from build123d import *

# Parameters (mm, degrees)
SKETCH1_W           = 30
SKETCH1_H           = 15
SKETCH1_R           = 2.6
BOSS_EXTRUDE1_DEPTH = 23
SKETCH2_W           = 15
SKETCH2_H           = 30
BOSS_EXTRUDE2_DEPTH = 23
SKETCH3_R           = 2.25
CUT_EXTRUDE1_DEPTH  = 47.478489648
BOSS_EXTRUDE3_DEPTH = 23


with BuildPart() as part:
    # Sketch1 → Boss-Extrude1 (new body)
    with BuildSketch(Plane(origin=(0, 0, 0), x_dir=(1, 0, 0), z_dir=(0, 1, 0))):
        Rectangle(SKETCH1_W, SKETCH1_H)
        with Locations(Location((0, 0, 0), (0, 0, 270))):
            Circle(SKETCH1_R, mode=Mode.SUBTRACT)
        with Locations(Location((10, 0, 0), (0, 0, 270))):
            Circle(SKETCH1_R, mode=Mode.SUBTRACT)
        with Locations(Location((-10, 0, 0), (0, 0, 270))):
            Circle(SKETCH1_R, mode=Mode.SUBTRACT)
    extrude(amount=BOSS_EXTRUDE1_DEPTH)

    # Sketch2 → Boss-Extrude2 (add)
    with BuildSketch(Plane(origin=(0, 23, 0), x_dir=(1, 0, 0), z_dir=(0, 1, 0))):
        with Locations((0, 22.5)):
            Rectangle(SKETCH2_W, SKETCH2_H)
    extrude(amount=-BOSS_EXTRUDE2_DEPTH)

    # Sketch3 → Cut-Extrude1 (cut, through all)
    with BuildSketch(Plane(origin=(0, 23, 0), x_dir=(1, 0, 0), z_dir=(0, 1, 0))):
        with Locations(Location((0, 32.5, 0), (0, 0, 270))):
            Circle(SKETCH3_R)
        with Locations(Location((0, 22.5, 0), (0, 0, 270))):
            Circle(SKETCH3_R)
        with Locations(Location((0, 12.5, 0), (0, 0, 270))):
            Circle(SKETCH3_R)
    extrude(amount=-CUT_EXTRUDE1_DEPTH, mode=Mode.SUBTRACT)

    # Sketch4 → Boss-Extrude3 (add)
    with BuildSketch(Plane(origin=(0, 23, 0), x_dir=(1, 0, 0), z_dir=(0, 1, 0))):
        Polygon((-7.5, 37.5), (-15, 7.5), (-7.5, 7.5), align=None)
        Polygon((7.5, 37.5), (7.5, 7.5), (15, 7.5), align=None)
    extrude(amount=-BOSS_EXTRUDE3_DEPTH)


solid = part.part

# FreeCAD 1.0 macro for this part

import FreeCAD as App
import Part
import Sketcher

doc = App.newDocument("Part")
params = doc.addObject("Spreadsheet::Sheet", "Params")
for row, (alias, value) in enumerate([
    ("sketch1_diameter", "5.2 mm"),
    ("sketch1_width", "30 mm"),
    ("sketch1_height", "15 mm"),
    ("pad1_length", "23 mm"),
    ("sketch2_width", "15 mm"),
    ("sketch2_height", "30 mm"),
    ("pad2_length", "23 mm"),
    ("sketch3_diameter", "4.5 mm"),
    ("sketch4_height", "30 mm"),
    ("sketch4_width", "7.5 mm"),
    ("pad3_length", "23 mm"),
], start=1):
    params.set(f"A{row}", alias)
    params.set(f"B{row}", "=" + value)
    params.setAlias(f"B{row}", alias)

body = doc.addObject("PartDesign::Body", "Body")

# Sketch on XZ plane
sketch1 = doc.addObject("Sketcher::SketchObject", "Sketch")
body.addObject(sketch1)
sketch1.AttachmentSupport = (doc.XZ_Plane, [""])
sketch1.MapMode = "FlatFace"
sketch1.addGeometry([
    Part.LineSegment(App.Vector(-15, -7.5, 0), App.Vector(-15, 7.5, 0)),  # 0
    Part.LineSegment(App.Vector(-15, 7.5, 0), App.Vector(15, 7.5, 0)),  # 1
    Part.LineSegment(App.Vector(15, 7.5, 0), App.Vector(15, -7.5, 0)),  # 2
    Part.LineSegment(App.Vector(15, -7.5, 0), App.Vector(-15, -7.5, 0)),  # 3
    Part.Circle(App.Vector(-10, 0, 0), App.Vector(0, 0, 1), 2.6),  # 4
    Part.Circle(App.Vector(0, 0, 0), App.Vector(0, 0, 1), 2.6),  # 5
    Part.Circle(App.Vector(10, 0, 0), App.Vector(0, 0, 1), 2.6),  # 6
], False)
sketch1.addConstraint([
    Sketcher.Constraint("Coincident", 0, 2, 1, 1),
    Sketcher.Constraint("Coincident", 1, 2, 2, 1),
    Sketcher.Constraint("Coincident", 2, 2, 3, 1),
    Sketcher.Constraint("Coincident", 3, 2, 0, 1),
    Sketcher.Constraint("Vertical", 0),
    Sketcher.Constraint("Horizontal", 1),
    Sketcher.Constraint("Vertical", 2),
    Sketcher.Constraint("Horizontal", 3),
    Sketcher.Constraint("Coincident", 5, 3, -1, 1),
    Sketcher.Constraint("Equal", 4, 5),
    Sketcher.Constraint("Equal", 5, 6),
    Sketcher.Constraint("Symmetric", 4, 3, 6, 3, -1, 1),
    Sketcher.Constraint("Symmetric", 0, 2, 2, 2, -1, 1),
    Sketcher.Constraint("PointOnObject", 4, 3, -1),
    Sketcher.Constraint("Diameter", 4, 5.2),
    Sketcher.Constraint("DistanceX", 1, 1, 1, 2, 30.0),
    Sketcher.Constraint("DistanceY", 0, 1, 0, 2, 15.0),
    Sketcher.Constraint("DistanceX", 4, 3, -1, 1, 10.0),
])
sketch1.setExpression("Constraints[14]", "Params.sketch1_diameter")
sketch1.setExpression("Constraints[15]", "Params.sketch1_width")
sketch1.setExpression("Constraints[16]", "Params.sketch1_height")
pad1 = doc.addObject("PartDesign::Pad", "Pad")
body.addObject(pad1)
pad1.Profile = sketch1
pad1.setExpression("Length", "Params.pad1_length")
pad1.Reversed = True

# Sketch on XZ plane
sketch2 = doc.addObject("Sketcher::SketchObject", "Sketch001")
body.addObject(sketch2)
sketch2.AttachmentSupport = (doc.XZ_Plane, [""])
sketch2.MapMode = "FlatFace"
sketch2.AttachmentOffset = App.Placement(App.Vector(0, 0, -23), App.Rotation())
sketch2.addGeometry([
    Part.LineSegment(App.Vector(-8, -38, 0), App.Vector(-8, -8, 0)),
    Part.LineSegment(App.Vector(-8, -8, 0), App.Vector(8, -8, 0)),
    Part.LineSegment(App.Vector(8, -8, 0), App.Vector(8, -38, 0)),
    Part.LineSegment(App.Vector(8, -38, 0), App.Vector(-8, -38, 0)),
], False)
sketch2.addConstraint([
    Sketcher.Constraint("Coincident", 0, 2, 1, 1),
    Sketcher.Constraint("Coincident", 1, 2, 2, 1),
    Sketcher.Constraint("Coincident", 2, 2, 3, 1),
    Sketcher.Constraint("Coincident", 3, 2, 0, 1),
    Sketcher.Constraint("Vertical", 0),
    Sketcher.Constraint("Horizontal", 1),
    Sketcher.Constraint("Vertical", 2),
    Sketcher.Constraint("Horizontal", 3),
    Sketcher.Constraint("DistanceX", 1, 1, 1, 2, 15.0),
    Sketcher.Constraint("DistanceY", 0, 1, 0, 2, 30.0),
    Sketcher.Constraint("DistanceX", 0, 2, -1, 1, 7.5),
    Sketcher.Constraint("DistanceY", 0, 2, -1, 1, 7.5),
])
sketch2.setExpression("Constraints[8]", "Params.sketch2_width")
sketch2.setExpression("Constraints[9]", "Params.sketch2_height")
pad2 = doc.addObject("PartDesign::Pad", "Pad001")
body.addObject(pad2)
pad2.Profile = sketch2
pad2.setExpression("Length", "Params.pad2_length")

# Sketch on XZ plane
sketch3 = doc.addObject("Sketcher::SketchObject", "Sketch002")
body.addObject(sketch3)
sketch3.AttachmentSupport = (doc.XZ_Plane, [""])
sketch3.MapMode = "FlatFace"
sketch3.AttachmentOffset = App.Placement(App.Vector(0, 0, -23), App.Rotation())
sketch3.addGeometry([
    Part.Circle(App.Vector(0, -32.5, 0), App.Vector(0, 0, 1), 2.2),
    Part.Circle(App.Vector(0, -22.5, 0), App.Vector(0, 0, 1), 2.2),
    Part.Circle(App.Vector(0, -12.5, 0), App.Vector(0, 0, 1), 2.2),
], False)
sketch3.addConstraint([
    Sketcher.Constraint("Equal", 0, 1),
    Sketcher.Constraint("Equal", 1, 2),
    Sketcher.Constraint("PointOnObject", 0, 3, -2),
    Sketcher.Constraint("PointOnObject", 1, 3, -2),
    Sketcher.Constraint("PointOnObject", 2, 3, -2),
    Sketcher.Constraint("Diameter", 0, 4.5),
    Sketcher.Constraint("DistanceY", 0, 3, 1, 3, 10.0),
    Sketcher.Constraint("DistanceY", 1, 3, 2, 3, 10.0),
    Sketcher.Constraint("DistanceY", 0, 3, -1, 1, 32.5),
])
sketch3.setExpression("Constraints[5]", "Params.sketch3_diameter")
pocket1 = doc.addObject("PartDesign::Pocket", "Pocket")
body.addObject(pocket1)
pocket1.Profile = sketch3
pocket1.Type = "ThroughAll"
pocket1.Reversed = True

# Sketch on XZ plane
sketch4 = doc.addObject("Sketcher::SketchObject", "Sketch003")
body.addObject(sketch4)
sketch4.AttachmentSupport = (doc.XZ_Plane, [""])
sketch4.MapMode = "FlatFace"
sketch4.AttachmentOffset = App.Placement(App.Vector(0, 0, -23), App.Rotation())
sketch4.addGeometry([
    Part.LineSegment(App.Vector(-8, -38, 0), App.Vector(-15, -8, 0)),  # 0
    Part.LineSegment(App.Vector(-15, -8, 0), App.Vector(-8, -8, 0)),  # 1
    Part.LineSegment(App.Vector(-8, -8, 0), App.Vector(-8, -38, 0)),  # 2
    Part.LineSegment(App.Vector(8, -38, 0), App.Vector(8, -8, 0)),  # 3
    Part.LineSegment(App.Vector(8, -8, 0), App.Vector(15, -8, 0)),  # 4
    Part.LineSegment(App.Vector(15, -8, 0), App.Vector(8, -38, 0)),  # 5
], False)
sketch4.addConstraint([
    Sketcher.Constraint("Coincident", 0, 2, 1, 1),
    Sketcher.Constraint("Coincident", 1, 2, 2, 1),
    Sketcher.Constraint("Coincident", 2, 2, 0, 1),
    Sketcher.Constraint("Coincident", 3, 2, 4, 1),
    Sketcher.Constraint("Coincident", 4, 2, 5, 1),
    Sketcher.Constraint("Coincident", 5, 2, 3, 1),
    Sketcher.Constraint("Horizontal", 1),
    Sketcher.Constraint("Vertical", 2),
    Sketcher.Constraint("Vertical", 3),
    Sketcher.Constraint("Horizontal", 4),
    Sketcher.Constraint("Symmetric", 1, 2, 3, 2, -2),
    Sketcher.Constraint("Horizontal", 2, 2, 5, 2),
    Sketcher.Constraint("Equal", 1, 4),
    Sketcher.Constraint("DistanceY", 2, 2, 2, 1, 30.0),
    Sketcher.Constraint("DistanceX", 1, 1, 1, 2, 7.5),
    Sketcher.Constraint("DistanceX", 0, 2, -1, 1, 15.0),
    Sketcher.Constraint("DistanceY", 0, 2, -1, 1, 7.5),
])
sketch4.setExpression("Constraints[13]", "Params.sketch4_height")
sketch4.setExpression("Constraints[14]", "Params.sketch4_width")
pad3 = doc.addObject("PartDesign::Pad", "Pad002")
body.addObject(pad3)
pad3.Profile = sketch4
pad3.setExpression("Length", "Params.pad3_length")

doc.recompute()
